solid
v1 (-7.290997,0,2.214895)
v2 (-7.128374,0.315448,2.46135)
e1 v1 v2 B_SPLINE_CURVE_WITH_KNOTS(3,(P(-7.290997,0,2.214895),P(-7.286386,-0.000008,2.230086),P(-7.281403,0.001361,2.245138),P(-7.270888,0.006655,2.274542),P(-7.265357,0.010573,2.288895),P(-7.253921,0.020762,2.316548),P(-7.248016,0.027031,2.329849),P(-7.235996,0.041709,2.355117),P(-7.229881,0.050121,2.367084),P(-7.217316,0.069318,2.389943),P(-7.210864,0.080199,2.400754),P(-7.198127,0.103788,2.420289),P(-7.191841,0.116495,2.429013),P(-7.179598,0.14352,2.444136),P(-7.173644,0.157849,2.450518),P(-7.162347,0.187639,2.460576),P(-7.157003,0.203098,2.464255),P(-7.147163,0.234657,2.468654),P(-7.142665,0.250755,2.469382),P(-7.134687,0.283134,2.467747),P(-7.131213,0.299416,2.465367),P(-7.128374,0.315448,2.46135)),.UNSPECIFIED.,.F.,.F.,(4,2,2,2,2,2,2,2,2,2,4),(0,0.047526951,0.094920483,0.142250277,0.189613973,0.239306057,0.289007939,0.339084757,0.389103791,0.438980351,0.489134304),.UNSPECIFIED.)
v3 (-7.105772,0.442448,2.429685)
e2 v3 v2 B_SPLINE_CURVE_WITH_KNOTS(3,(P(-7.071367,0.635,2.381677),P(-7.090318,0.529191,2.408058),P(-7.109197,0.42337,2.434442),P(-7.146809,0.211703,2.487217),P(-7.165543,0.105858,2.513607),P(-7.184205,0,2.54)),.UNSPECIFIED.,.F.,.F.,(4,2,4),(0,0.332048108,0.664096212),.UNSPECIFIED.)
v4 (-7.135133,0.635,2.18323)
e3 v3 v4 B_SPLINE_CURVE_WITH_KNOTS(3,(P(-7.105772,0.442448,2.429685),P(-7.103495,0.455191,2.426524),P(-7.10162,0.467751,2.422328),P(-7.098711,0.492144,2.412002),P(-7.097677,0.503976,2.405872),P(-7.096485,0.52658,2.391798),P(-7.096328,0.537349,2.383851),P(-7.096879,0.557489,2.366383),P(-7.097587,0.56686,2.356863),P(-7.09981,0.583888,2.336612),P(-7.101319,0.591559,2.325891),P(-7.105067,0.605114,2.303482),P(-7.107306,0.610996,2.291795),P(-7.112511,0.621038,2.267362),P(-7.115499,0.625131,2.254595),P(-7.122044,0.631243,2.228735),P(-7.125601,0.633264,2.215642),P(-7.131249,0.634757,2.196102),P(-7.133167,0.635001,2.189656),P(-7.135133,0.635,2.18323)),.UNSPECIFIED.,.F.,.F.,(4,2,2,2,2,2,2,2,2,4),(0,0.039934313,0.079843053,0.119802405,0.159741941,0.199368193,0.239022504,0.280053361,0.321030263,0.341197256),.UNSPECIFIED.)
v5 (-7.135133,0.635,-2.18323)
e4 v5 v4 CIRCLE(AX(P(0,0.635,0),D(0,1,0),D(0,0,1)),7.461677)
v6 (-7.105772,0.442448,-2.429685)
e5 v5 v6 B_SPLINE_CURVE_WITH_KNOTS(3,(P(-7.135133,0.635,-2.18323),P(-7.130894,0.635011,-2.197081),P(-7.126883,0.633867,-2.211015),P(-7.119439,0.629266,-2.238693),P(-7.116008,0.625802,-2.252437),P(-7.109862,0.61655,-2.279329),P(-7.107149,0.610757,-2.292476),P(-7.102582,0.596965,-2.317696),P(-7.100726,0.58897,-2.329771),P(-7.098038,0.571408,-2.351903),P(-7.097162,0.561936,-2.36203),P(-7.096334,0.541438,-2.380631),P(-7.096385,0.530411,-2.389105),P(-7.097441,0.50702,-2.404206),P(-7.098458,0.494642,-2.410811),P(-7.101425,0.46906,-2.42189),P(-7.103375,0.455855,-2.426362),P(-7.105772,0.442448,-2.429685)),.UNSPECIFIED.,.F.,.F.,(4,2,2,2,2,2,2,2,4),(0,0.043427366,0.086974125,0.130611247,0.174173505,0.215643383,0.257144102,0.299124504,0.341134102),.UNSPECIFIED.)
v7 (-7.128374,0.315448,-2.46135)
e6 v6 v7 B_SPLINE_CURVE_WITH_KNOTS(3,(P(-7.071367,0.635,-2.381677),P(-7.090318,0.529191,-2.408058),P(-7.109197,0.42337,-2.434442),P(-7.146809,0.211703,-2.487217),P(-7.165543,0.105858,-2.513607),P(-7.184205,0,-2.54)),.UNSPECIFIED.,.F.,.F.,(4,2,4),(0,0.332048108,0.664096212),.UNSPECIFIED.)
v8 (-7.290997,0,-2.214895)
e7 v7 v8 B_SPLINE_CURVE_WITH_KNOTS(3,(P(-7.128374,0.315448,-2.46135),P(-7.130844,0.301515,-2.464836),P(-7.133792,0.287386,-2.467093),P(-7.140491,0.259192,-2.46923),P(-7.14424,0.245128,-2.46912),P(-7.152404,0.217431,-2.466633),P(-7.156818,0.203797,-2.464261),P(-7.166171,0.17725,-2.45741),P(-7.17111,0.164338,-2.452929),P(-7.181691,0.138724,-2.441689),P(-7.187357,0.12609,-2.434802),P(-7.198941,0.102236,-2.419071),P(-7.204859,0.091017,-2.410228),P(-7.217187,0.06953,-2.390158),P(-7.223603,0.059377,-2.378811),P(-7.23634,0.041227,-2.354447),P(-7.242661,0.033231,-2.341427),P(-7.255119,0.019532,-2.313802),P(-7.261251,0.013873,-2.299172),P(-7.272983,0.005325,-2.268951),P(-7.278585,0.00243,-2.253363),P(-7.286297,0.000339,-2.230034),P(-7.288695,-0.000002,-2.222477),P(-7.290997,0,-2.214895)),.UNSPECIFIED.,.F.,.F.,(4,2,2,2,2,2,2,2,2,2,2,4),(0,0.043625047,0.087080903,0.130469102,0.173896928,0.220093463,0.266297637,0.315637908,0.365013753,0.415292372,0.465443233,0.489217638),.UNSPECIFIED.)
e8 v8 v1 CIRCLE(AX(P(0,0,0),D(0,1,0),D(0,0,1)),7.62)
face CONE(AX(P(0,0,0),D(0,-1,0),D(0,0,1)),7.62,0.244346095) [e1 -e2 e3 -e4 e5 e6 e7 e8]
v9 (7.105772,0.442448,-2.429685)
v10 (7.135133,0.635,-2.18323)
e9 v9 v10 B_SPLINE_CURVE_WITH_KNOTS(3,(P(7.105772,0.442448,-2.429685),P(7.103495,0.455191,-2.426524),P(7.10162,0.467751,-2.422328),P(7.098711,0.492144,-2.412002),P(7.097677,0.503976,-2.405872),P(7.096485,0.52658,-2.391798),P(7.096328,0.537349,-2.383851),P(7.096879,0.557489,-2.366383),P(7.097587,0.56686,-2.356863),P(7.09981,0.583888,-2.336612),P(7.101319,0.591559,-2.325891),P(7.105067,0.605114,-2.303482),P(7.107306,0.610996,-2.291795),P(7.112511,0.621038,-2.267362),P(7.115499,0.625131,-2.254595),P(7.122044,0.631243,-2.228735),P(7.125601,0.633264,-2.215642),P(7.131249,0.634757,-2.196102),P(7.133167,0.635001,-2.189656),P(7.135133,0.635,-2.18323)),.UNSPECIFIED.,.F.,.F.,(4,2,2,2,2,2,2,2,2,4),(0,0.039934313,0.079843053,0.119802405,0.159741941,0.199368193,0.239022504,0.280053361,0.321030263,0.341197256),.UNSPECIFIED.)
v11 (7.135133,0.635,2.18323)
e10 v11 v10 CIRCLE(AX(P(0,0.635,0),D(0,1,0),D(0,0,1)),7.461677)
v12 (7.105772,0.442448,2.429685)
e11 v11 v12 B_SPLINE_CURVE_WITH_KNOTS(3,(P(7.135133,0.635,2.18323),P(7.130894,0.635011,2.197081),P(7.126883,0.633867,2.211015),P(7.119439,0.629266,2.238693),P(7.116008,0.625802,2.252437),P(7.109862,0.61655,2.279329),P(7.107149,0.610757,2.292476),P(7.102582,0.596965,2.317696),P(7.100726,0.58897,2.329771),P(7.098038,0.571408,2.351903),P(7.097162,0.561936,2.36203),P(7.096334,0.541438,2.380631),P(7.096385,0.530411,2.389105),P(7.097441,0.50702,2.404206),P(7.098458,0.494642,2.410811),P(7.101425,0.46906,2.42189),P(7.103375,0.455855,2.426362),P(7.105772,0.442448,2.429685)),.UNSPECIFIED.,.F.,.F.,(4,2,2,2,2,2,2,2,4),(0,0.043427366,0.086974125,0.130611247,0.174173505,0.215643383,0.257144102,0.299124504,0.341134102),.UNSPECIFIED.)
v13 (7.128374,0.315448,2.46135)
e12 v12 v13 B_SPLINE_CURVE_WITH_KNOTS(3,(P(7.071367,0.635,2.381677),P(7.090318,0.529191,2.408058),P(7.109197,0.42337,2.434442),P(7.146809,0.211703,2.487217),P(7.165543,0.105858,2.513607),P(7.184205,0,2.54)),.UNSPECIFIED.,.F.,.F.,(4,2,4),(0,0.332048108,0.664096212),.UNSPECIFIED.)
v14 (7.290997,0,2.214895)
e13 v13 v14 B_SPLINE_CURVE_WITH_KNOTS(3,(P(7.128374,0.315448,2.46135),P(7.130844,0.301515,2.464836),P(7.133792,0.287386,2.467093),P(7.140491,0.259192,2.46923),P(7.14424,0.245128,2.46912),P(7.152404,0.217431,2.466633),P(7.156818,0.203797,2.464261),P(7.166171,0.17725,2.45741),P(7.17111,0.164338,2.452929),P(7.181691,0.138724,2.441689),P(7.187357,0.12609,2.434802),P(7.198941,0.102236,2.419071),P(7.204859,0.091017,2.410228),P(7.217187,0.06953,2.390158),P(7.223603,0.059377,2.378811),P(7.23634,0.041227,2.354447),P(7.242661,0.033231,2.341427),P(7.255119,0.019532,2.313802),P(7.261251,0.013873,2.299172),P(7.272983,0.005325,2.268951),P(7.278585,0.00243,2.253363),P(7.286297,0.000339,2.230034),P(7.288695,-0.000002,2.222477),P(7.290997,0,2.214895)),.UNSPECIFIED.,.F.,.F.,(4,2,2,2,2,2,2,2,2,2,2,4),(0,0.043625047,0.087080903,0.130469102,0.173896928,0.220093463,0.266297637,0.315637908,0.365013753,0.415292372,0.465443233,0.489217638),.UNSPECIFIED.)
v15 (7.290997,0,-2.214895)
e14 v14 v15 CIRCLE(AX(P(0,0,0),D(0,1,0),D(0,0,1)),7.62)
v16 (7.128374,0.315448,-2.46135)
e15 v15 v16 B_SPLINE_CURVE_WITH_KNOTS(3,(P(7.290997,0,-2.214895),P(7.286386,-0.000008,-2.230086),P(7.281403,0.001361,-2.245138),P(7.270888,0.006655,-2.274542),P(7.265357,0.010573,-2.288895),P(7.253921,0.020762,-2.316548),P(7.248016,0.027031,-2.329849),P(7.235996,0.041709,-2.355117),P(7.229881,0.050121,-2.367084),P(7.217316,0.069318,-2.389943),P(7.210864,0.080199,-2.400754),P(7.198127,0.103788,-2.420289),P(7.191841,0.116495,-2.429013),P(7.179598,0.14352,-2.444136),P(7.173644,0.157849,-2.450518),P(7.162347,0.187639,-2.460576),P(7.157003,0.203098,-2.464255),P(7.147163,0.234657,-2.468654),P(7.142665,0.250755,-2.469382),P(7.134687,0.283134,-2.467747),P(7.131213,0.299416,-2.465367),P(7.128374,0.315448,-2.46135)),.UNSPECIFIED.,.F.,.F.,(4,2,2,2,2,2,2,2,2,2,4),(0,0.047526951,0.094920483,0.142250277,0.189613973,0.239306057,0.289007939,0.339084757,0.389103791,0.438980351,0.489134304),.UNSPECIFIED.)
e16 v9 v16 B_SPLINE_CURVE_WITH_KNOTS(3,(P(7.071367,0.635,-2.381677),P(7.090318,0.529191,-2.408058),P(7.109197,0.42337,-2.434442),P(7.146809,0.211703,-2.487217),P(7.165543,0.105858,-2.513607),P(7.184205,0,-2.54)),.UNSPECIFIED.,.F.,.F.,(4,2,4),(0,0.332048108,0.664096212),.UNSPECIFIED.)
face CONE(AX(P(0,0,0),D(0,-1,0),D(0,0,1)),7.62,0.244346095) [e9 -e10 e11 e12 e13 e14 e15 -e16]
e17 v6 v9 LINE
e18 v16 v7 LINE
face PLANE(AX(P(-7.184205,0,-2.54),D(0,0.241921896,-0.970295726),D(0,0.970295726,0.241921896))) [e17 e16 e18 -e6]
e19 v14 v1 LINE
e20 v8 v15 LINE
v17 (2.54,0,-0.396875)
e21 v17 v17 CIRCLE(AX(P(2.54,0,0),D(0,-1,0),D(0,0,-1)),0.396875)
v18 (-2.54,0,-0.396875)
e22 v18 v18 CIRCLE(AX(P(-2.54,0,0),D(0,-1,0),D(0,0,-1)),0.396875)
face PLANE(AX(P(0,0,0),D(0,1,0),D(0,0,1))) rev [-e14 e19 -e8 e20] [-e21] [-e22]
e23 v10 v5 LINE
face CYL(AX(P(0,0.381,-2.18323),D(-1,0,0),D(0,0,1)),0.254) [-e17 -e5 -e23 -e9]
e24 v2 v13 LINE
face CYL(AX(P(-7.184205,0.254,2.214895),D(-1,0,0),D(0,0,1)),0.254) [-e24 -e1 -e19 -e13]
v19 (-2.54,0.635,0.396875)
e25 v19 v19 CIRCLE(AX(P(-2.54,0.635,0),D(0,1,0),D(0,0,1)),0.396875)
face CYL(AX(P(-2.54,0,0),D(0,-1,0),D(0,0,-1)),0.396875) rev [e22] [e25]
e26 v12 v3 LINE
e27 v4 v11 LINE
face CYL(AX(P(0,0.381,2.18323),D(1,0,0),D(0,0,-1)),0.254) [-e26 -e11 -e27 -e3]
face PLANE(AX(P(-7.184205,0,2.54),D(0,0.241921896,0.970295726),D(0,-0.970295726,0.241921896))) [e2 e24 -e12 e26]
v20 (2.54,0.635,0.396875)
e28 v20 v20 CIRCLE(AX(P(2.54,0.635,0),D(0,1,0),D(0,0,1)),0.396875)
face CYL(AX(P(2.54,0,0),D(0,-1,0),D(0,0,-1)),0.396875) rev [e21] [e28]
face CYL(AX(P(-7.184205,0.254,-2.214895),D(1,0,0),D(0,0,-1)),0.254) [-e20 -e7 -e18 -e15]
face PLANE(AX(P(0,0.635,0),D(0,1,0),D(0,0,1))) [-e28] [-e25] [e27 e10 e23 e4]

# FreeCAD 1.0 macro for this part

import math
import FreeCAD as App
import Part
import Sketcher
from FreeCAD import Vector
Q = App.Units.Quantity


def edges_at(feature, points):
    """Names of the edges that pass closest to the given points."""
    edges = feature.Shape.Edges
    near = lambda p: min(range(len(edges)), key=lambda i: edges[i].distToShape(Part.Vertex(*p))[0])
    return sorted({f"Edge{near(p) + 1}" for p in points})

doc = App.newDocument("Part")
params = doc.addObject("Spreadsheet::Sheet", "Params")
for row, (alias, value) in enumerate([
    ("sketch1_radius", "0.3 in"),
    ("pad1_length", "0.025 in"),
    ("pad1_taper", "-14 deg"),
    ("sketch2_diameter", "0.03125 in"),
    ("hole_diameter", "0.03125 in"),
    ("hole_depth", "0.5 in"),
    ("fillet_radius", "0.01 in"),
], start=1):
    params.set(f"A{row}", alias)
    params.set(f"B{row}", "=" + value)
    params.setAlias(f"B{row}", alias)

body = doc.addObject("PartDesign::Body", "Body")

# Sketch on XZ plane
sketch1 = body.newObject("Sketcher::SketchObject", "Sketch")
sketch1.AttachmentSupport = (doc.getObject("XZ_Plane"), [""])
sketch1.MapMode = "FlatFace"
sketch1.addGeometry(Part.LineSegment(Vector(-7, 3, 0), Vector(7, 3, 0)), False)
sketch1.addGeometry(Part.ArcOfCircle(Part.Circle(Vector(0, 0, 0), Vector(0, 0, 1), 8), math.radians(-19), math.radians(19)), False)
sketch1.addGeometry(Part.LineSegment(Vector(7, -3, 0), Vector(-7, -3, 0)), False)
sketch1.addGeometry(Part.ArcOfCircle(Part.Circle(Vector(0, 0, 0), Vector(0, 0, 1), 8), math.radians(161), math.radians(199)), False)
sketch1.addConstraint(Sketcher.Constraint("Coincident", 0, 2, 1, 2))
sketch1.addConstraint(Sketcher.Constraint("Coincident", 1, 1, 2, 1))
sketch1.addConstraint(Sketcher.Constraint("Coincident", 2, 2, 3, 2))
sketch1.addConstraint(Sketcher.Constraint("Coincident", 3, 1, 0, 1))
sketch1.addConstraint(Sketcher.Constraint("Horizontal", 0))
sketch1.addConstraint(Sketcher.Constraint("Horizontal", 2))
sketch1.addConstraint(Sketcher.Constraint("Coincident", 1, 3, -1, 1))
sketch1.addConstraint(Sketcher.Constraint("Coincident", 3, 3, -1, 1))
sketch1.addConstraint(Sketcher.Constraint("Equal", 1, 3))
sketch1.addConstraint(Sketcher.Constraint("Vertical", 0, 2, 1, 1))
sketch1.addConstraint(Sketcher.Constraint("Radius", 1, Q("0.3 in")))
sketch1.addConstraint(Sketcher.Constraint("DistanceY", -1, 1, 0, 2, Q("0.1 in")))
sketch1.setExpression("Constraints[10]", "Params.sketch1_radius")
pad1 = body.newObject("PartDesign::Pad", "Pad")
pad1.Profile = sketch1
pad1.setExpression("Length", "Params.pad1_length")
pad1.Reversed = True
pad1.setExpression("TaperAngle", "Params.pad1_taper")

# Sketch on XZ plane
sketch2 = body.newObject("Sketcher::SketchObject", "Sketch001")
sketch2.AttachmentSupport = (doc.getObject("XZ_Plane"), [""])
sketch2.MapMode = "FlatFace"
sketch2.addGeometry(Part.Circle(Vector(-2.54, 0, 0), Vector(0, 0, 1), 0.4), False)
sketch2.addGeometry(Part.Circle(Vector(2.54, 0, 0), Vector(0, 0, 1), 0.4), False)
sketch2.addConstraint(Sketcher.Constraint("Equal", 0, 1))
sketch2.addConstraint(Sketcher.Constraint("Symmetric", 0, 3, 1, 3, -1, 1))
sketch2.addConstraint(Sketcher.Constraint("PointOnObject", 0, 3, -1))
sketch2.addConstraint(Sketcher.Constraint("Diameter", 0, Q("0.03125 in")))
sketch2.addConstraint(Sketcher.Constraint("DistanceX", 0, 3, -1, 1, Q("0.1 in")))
sketch2.setExpression("Constraints[3]", "Params.sketch2_diameter")
doc.recompute()
hole = body.newObject("PartDesign::Hole", "Hole")
hole.Profile = sketch2
hole.ThreadType = "None"
hole.setExpression("Diameter", "Params.hole_diameter")
hole.DepthType = "Dimension"
hole.setExpression("Depth", "Params.hole_depth")
hole.DrillPoint = "Angled"
hole.DrillPointAngle = 118
doc.recompute()

fillet = body.newObject("PartDesign::Fillet", "Fillet")
fillet.Base = (hole, edges_at(hole, [
    (0, 0, -2.54),
    (0, 0.635, -2.382),
    (0, 0, 2.54),
    (0, 0.635, 2.382),
]))
fillet.setExpression("Radius", "Params.fillet_radius")

doc.recompute()
